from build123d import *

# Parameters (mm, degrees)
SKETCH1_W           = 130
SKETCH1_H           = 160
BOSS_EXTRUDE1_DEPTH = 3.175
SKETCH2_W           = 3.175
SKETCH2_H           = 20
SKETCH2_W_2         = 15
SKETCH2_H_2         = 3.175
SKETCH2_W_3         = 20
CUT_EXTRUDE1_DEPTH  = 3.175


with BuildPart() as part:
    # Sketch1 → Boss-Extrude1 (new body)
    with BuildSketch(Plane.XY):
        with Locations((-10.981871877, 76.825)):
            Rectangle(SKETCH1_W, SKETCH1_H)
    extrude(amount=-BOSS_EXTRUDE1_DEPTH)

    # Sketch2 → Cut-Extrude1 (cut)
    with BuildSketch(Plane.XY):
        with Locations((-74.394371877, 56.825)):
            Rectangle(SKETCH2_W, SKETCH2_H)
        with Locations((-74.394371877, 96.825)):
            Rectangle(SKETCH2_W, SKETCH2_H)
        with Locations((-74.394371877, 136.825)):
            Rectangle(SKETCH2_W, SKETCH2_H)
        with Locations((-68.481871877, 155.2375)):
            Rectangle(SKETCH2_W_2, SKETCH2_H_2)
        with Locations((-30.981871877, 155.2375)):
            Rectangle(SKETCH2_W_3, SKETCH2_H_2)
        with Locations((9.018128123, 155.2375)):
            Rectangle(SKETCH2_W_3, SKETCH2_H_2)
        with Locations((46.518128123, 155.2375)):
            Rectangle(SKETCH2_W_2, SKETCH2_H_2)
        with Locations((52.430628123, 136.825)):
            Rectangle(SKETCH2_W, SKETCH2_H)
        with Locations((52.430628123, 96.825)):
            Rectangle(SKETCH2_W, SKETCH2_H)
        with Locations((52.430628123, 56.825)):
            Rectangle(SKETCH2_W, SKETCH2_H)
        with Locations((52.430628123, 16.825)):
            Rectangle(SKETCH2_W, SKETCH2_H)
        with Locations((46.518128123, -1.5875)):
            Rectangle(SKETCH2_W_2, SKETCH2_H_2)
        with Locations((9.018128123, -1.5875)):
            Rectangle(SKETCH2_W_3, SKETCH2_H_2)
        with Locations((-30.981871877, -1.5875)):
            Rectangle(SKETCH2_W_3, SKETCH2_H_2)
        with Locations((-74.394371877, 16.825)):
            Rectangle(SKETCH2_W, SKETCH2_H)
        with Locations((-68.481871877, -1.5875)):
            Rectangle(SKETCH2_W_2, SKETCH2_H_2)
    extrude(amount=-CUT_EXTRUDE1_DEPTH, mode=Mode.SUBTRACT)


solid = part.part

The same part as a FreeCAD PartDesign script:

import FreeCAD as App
import Part
import Sketcher
from FreeCAD import Vector
Q = App.Units.Quantity


def add_polygon(sketch, points):
    """Adds a closed chain of lines whose ends are joined by coincident constraints."""
    first, n = sketch.GeometryCount, len(points)
    for a, b in zip(points, points[1:] + points[:1]):
        sketch.addGeometry(Part.LineSegment(App.Vector(*a, 0), App.Vector(*b, 0)), False)
    for i in range(n):
        sketch.addConstraint(Sketcher.Constraint("Coincident", first + i, 2, first + (i + 1) % n, 1))

doc = App.newDocument("Part")
params = doc.addObject("Spreadsheet::Sheet", "Params")
for row, (alias, value) in enumerate([
    ("sketch1_width", "130 mm"),
    ("sketch1_height", "160 mm"),
    ("pad1_length", "3.175 mm"),
    ("sketch2_width", "15 mm"),
    ("sketch2_width2", "20 mm"),
    ("pocket1_length", "3.175 mm"),
], start=1):
    params.set(f"A{row}", alias)
    params.set(f"B{row}", "=" + value)
    params.setAlias(f"B{row}", alias)

body = doc.addObject("PartDesign::Body", "Body")

sketch1 = body.newObject("Sketcher::SketchObject", "Sketch")
sketch1.AttachmentSupport = (doc.getObject("XY_Plane"), [""])
sketch1.MapMode = "FlatFace"
add_polygon(sketch1, [(-76, 157), (-76, -3), (54, -3), (54, 157)])
sketch1.addConstraint(Sketcher.Constraint("Vertical", 0))
sketch1.addConstraint(Sketcher.Constraint("Horizontal", 1))
sketch1.addConstraint(Sketcher.Constraint("Vertical", 2))
sketch1.addConstraint(Sketcher.Constraint("Horizontal", 3))
sketch1.addConstraint(Sketcher.Constraint("DistanceX", 1, 1, 1, 2, Q("130 mm")))
sketch1.addConstraint(Sketcher.Constraint("DistanceY", 0, 2, 0, 1, Q("160 mm")))
sketch1.addConstraint(Sketcher.Constraint("DistanceY", 0, 2, -1, 1, Q("3.175 mm")))
sketch1.addConstraint(Sketcher.Constraint("DistanceX", 0, 2, -1, 1, Q("75.981872 mm")))
sketch1.setExpression("Constraints[8]", "Params.sketch1_width")
sketch1.setExpression("Constraints[9]", "Params.sketch1_height")
pad1 = body.newObject("PartDesign::Pad", "Pad")
pad1.Profile = sketch1
pad1.setExpression("Length", "Params.pad1_length")
pad1.Reversed = True

sketch2 = body.newObject("Sketcher::SketchObject", "Sketch001")
sketch2.AttachmentSupport = (doc.getObject("XY_Plane"), [""])
sketch2.MapMode = "FlatFace"
add_polygon(sketch2, [(-76, 66.8), (-76, 46.8), (-72.8, 46.8), (-72.8, 66.8)])
add_polygon(sketch2, [(-76, 106.8), (-76, 86.8), (-72.8, 86.8), (-72.8, 106.8)])
add_polygon(sketch2, [(-76, 146.8), (-76, 126.8), (-72.8, 126.8), (-72.8, 146.8)])
add_polygon(sketch2, [(-76, 156.8), (-76, 153.7), (-61, 153.7), (-61, 156.8)])
add_polygon(sketch2, [(-41, 156.8), (-41, 153.7), (-21, 153.7), (-21, 156.8)])
add_polygon(sketch2, [(-1, 156.8), (-1, 153.7), (19, 153.7), (19, 156.8)])
add_polygon(sketch2, [(39, 156.8), (39, 153.7), (54, 153.7), (54, 156.8)])
add_polygon(sketch2, [(50.8, 146.8), (50.8, 126.8), (54, 126.8), (54, 146.8)])
add_polygon(sketch2, [(50.8, 106.8), (50.8, 86.8), (54, 86.8), (54, 106.8)])
add_polygon(sketch2, [(50.8, 66.8), (50.8, 46.8), (54, 46.8), (54, 66.8)])
add_polygon(sketch2, [(50.8, 26.8), (50.8, 6.8), (54, 6.8), (54, 26.8)])
add_polygon(sketch2, [(39, 0), (39, -3.2), (54, -3.2), (54, 0)])
add_polygon(sketch2, [(-1, 0), (-1, -3.2), (19, -3.2), (19, 0)])
add_polygon(sketch2, [(-41, 0), (-41, -3.2), (-21, -3.2), (-21, 0)])
add_polygon(sketch2, [(-76, 26.8), (-76, 6.8), (-72.8, 6.8), (-72.8, 26.8)])
add_polygon(sketch2, [(-76, 0), (-76, -3.2), (-61, -3.2), (-61, 0)])
sketch2.addConstraint(Sketcher.Constraint("Vertical", 0))
sketch2.addConstraint(Sketcher.Constraint("Horizontal", 1))
sketch2.addConstraint(Sketcher.Constraint("Vertical", 2))
sketch2.addConstraint(Sketcher.Constraint("Horizontal", 3))
sketch2.addConstraint(Sketcher.Constraint("Vertical", 4))
sketch2.addConstraint(Sketcher.Constraint("Horizontal", 5))
sketch2.addConstraint(Sketcher.Constraint("Vertical", 6))
sketch2.addConstraint(Sketcher.Constraint("Horizontal", 7))
sketch2.addConstraint(Sketcher.Constraint("Vertical", 8))
sketch2.addConstraint(Sketcher.Constraint("Horizontal", 9))
sketch2.addConstraint(Sketcher.Constraint("Vertical", 10))
sketch2.addConstraint(Sketcher.Constraint("Horizontal", 11))
sketch2.addConstraint(Sketcher.Constraint("Vertical", 12))
sketch2.addConstraint(Sketcher.Constraint("Horizontal", 13))
sketch2.addConstraint(Sketcher.Constraint("Vertical", 14))
sketch2.addConstraint(Sketcher.Constraint("Horizontal", 15))
sketch2.addConstraint(Sketcher.Constraint("Vertical", 16))
sketch2.addConstraint(Sketcher.Constraint("Horizontal", 17))
sketch2.addConstraint(Sketcher.Constraint("Vertical", 18))
sketch2.addConstraint(Sketcher.Constraint("Horizontal", 19))
sketch2.addConstraint(Sketcher.Constraint("Vertical", 20))
sketch2.addConstraint(Sketcher.Constraint("Horizontal", 21))
sketch2.addConstraint(Sketcher.Constraint("Vertical", 22))
sketch2.addConstraint(Sketcher.Constraint("Horizontal", 23))
sketch2.addConstraint(Sketcher.Constraint("Vertical", 24))
sketch2.addConstraint(Sketcher.Constraint("Horizontal", 25))
sketch2.addConstraint(Sketcher.Constraint("Vertical", 26))
sketch2.addConstraint(Sketcher.Constraint("Horizontal", 27))
sketch2.addConstraint(Sketcher.Constraint("Vertical", 28))
sketch2.addConstraint(Sketcher.Constraint("Horizontal", 29))
sketch2.addConstraint(Sketcher.Constraint("Vertical", 30))
sketch2.addConstraint(Sketcher.Constraint("Horizontal", 31))
sketch2.addConstraint(Sketcher.Constraint("Vertical", 32))
sketch2.addConstraint(Sketcher.Constraint("Horizontal", 33))
sketch2.addConstraint(Sketcher.Constraint("Vertical", 34))
sketch2.addConstraint(Sketcher.Constraint("Horizontal", 35))
sketch2.addConstraint(Sketcher.Constraint("Vertical", 36))
sketch2.addConstraint(Sketcher.Constraint("Horizontal", 37))
sketch2.addConstraint(Sketcher.Constraint("Vertical", 38))
sketch2.addConstraint(Sketcher.Constraint("Horizontal", 39))
sketch2.addConstraint(Sketcher.Constraint("Vertical", 40))
sketch2.addConstraint(Sketcher.Constraint("Horizontal", 41))
sketch2.addConstraint(Sketcher.Constraint("Vertical", 42))
sketch2.addConstraint(Sketcher.Constraint("Horizontal", 43))
sketch2.addConstraint(Sketcher.Constraint("Vertical", 44))
sketch2.addConstraint(Sketcher.Constraint("Horizontal", 45))
sketch2.addConstraint(Sketcher.Constraint("Vertical", 46))
sketch2.addConstraint(Sketcher.Constraint("Horizontal", 47))
sketch2.addConstraint(Sketcher.Constraint("Vertical", 48))
sketch2.addConstraint(Sketcher.Constraint("Horizontal", 49))
sketch2.addConstraint(Sketcher.Constraint("Vertical", 50))
sketch2.addConstraint(Sketcher.Constraint("Horizontal", 51))
sketch2.addConstraint(Sketcher.Constraint("Vertical", 52))
sketch2.addConstraint(Sketcher.Constraint("Horizontal", 53))
sketch2.addConstraint(Sketcher.Constraint("Vertical", 54))
sketch2.addConstraint(Sketcher.Constraint("Horizontal", 55))
sketch2.addConstraint(Sketcher.Constraint("Vertical", 56))
sketch2.addConstraint(Sketcher.Constraint("Horizontal", 57))
sketch2.addConstraint(Sketcher.Constraint("Vertical", 58))
sketch2.addConstraint(Sketcher.Constraint("Horizontal", 59))
sketch2.addConstraint(Sketcher.Constraint("Vertical", 60))
sketch2.addConstraint(Sketcher.Constraint("Horizontal", 61))
sketch2.addConstraint(Sketcher.Constraint("Vertical", 62))
sketch2.addConstraint(Sketcher.Constraint("Horizontal", 63))
sketch2.addConstraint(Sketcher.Constraint("PointOnObject", 46, 2, -1))
sketch2.addConstraint(Sketcher.Constraint("PointOnObject", 50, 2, -1))
sketch2.addConstraint(Sketcher.Constraint("PointOnObject", 54, 2, -1))
sketch2.addConstraint(Sketcher.Constraint("PointOnObject", 62, 2, -1))
sketch2.addConstraint(Sketcher.Constraint("Horizontal", 13, 2, 16, 2))
sketch2.addConstraint(Sketcher.Constraint("Horizontal", 15, 2, 18, 2))
sketch2.addConstraint(Sketcher.Constraint("Horizontal", 17, 2, 20, 2))
sketch2.addConstraint(Sketcher.Constraint("Horizontal", 19, 2, 22, 2))
sketch2.addConstraint(Sketcher.Constraint("Horizontal", 21, 2, 24, 2))
sketch2.addConstraint(Sketcher.Constraint("Horizontal", 23, 2, 26, 2))
sketch2.addConstraint(Sketcher.Constraint("Horizontal", 9, 2, 28, 2))
sketch2.addConstraint(Sketcher.Constraint("Horizontal", 11, 2, 30, 2))
sketch2.addConstraint(Sketcher.Constraint("Horizontal", 5, 2, 32, 2))
sketch2.addConstraint(Sketcher.Constraint("Horizontal", 7, 2, 34, 2))
sketch2.addConstraint(Sketcher.Constraint("Horizontal", 1, 2, 36, 2))
sketch2.addConstraint(Sketcher.Constraint("Horizontal", 3, 2, 38, 2))
sketch2.addConstraint(Sketcher.Constraint("Horizontal", 45, 2, 48, 2))
sketch2.addConstraint(Sketcher.Constraint("Horizontal", 49, 2, 52, 2))
sketch2.addConstraint(Sketcher.Constraint("Horizontal", 41, 2, 56, 2))
sketch2.addConstraint(Sketcher.Constraint("Horizontal", 43, 2, 58, 2))
sketch2.addConstraint(Sketcher.Constraint("Horizontal", 53, 2, 60, 2))
sketch2.addConstraint(Sketcher.Constraint("Vertical", 3, 2, 4, 2))
sketch2.addConstraint(Sketcher.Constraint("Vertical", 2, 2, 5, 2))
sketch2.addConstraint(Sketcher.Constraint("Vertical", 7, 2, 8, 2))
sketch2.addConstraint(Sketcher.Constraint("Vertical", 6, 2, 9, 2))
sketch2.addConstraint(Sketcher.Constraint("Vertical", 11, 2, 12, 2))
sketch2.addConstraint(Sketcher.Constraint("Vertical", 26, 2, 29, 2))
sketch2.addConstraint(Sketcher.Constraint("Vertical", 31, 2, 32, 2))
sketch2.addConstraint(Sketcher.Constraint("Vertical", 30, 2, 33, 2))
sketch2.addConstraint(Sketcher.Constraint("Vertical", 35, 2, 36, 2))
sketch2.addConstraint(Sketcher.Constraint("Vertical", 34, 2, 37, 2))
sketch2.addConstraint(Sketcher.Constraint("Vertical", 39, 2, 40, 2))
sketch2.addConstraint(Sketcher.Constraint("Vertical", 38, 2, 41, 2))
sketch2.addConstraint(Sketcher.Constraint("Vertical", 27, 2, 44, 2))
sketch2.addConstraint(Sketcher.Constraint("Vertical", 42, 2, 45, 2))
sketch2.addConstraint(Sketcher.Constraint("Vertical", 23, 2, 48, 2))
sketch2.addConstraint(Sketcher.Constraint("Vertical", 22, 2, 49, 2))
sketch2.addConstraint(Sketcher.Constraint("Vertical", 19, 2, 52, 2))
sketch2.addConstraint(Sketcher.Constraint("Vertical", 18, 2, 53, 2))
sketch2.addConstraint(Sketcher.Constraint("Vertical", 15, 2, 56, 2))
sketch2.addConstraint(Sketcher.Constraint("Vertical", 10, 2, 57, 2))
sketch2.addConstraint(Sketcher.Constraint("Vertical", 59, 2, 60, 2))
sketch2.addConstraint(Sketcher.Constraint("Vertical", 14, 2, 61, 2))
sketch2.addConstraint(Sketcher.Constraint("Equal", 19, 21))
sketch2.addConstraint(Sketcher.Constraint("Equal", 15, 25))
sketch2.addConstraint(Sketcher.Constraint("Equal", 11, 29))
sketch2.addConstraint(Sketcher.Constraint("Equal", 55, 0))
sketch2.addConstraint(Sketcher.Constraint("Equal", 2, 4))
sketch2.addConstraint(Sketcher.Constraint("Equal", 6, 8))
sketch2.addConstraint(Sketcher.Constraint("Equal", 59, 12))
sketch2.addConstraint(Sketcher.Constraint("Equal", 38, 40))
sketch2.addConstraint(Sketcher.Constraint("Equal", 26, 44))
sketch2.addConstraint(Sketcher.Constraint("DistanceX", 13, 1, 13, 2, Q("15 mm")))
sketch2.addConstraint(Sketcher.Constraint("DistanceX", 17, 1, 17, 2, Q("20 mm")))
sketch2.addConstraint(Sketcher.Constraint("DistanceX", 1, 1, 1, 2, Q("3.175 mm")))
sketch2.addConstraint(Sketcher.Constraint("DistanceY", -1, 1, 12, 2, Q("153.65 mm")))
sketch2.addConstraint(Sketcher.Constraint("DistanceY", -1, 1, 0, 2, Q("46.825 mm")))
sketch2.addConstraint(Sketcher.Constraint("DistanceY", -1, 1, 4, 2, Q("86.825 mm")))
sketch2.addConstraint(Sketcher.Constraint("DistanceY", -1, 1, 8, 2, Q("126.825 mm")))
sketch2.addConstraint(Sketcher.Constraint("DistanceY", -1, 1, 40, 2, Q("6.825 mm")))
sketch2.addConstraint(Sketcher.Constraint("DistanceX", 0, 2, -1, 1, Q("75.981872 mm")))
sketch2.addConstraint(Sketcher.Constraint("DistanceX", 16, 2, -1, 1, Q("40.981872 mm")))
sketch2.addConstraint(Sketcher.Constraint("DistanceX", 20, 2, -1, 1, Q("0.981872 mm")))
sketch2.addConstraint(Sketcher.Constraint("DistanceX", -1, 1, 24, 2, Q("39.018128 mm")))
sketch2.setExpression("Constraints[180]", "Params.sketch2_width")
sketch2.setExpression("Constraints[181]", "Params.sketch2_width2")
pocket1 = body.newObject("PartDesign::Pocket", "Pocket")
pocket1.Profile = sketch2
pocket1.setExpression("Length", "Params.pocket1_length")

doc.recompute()
